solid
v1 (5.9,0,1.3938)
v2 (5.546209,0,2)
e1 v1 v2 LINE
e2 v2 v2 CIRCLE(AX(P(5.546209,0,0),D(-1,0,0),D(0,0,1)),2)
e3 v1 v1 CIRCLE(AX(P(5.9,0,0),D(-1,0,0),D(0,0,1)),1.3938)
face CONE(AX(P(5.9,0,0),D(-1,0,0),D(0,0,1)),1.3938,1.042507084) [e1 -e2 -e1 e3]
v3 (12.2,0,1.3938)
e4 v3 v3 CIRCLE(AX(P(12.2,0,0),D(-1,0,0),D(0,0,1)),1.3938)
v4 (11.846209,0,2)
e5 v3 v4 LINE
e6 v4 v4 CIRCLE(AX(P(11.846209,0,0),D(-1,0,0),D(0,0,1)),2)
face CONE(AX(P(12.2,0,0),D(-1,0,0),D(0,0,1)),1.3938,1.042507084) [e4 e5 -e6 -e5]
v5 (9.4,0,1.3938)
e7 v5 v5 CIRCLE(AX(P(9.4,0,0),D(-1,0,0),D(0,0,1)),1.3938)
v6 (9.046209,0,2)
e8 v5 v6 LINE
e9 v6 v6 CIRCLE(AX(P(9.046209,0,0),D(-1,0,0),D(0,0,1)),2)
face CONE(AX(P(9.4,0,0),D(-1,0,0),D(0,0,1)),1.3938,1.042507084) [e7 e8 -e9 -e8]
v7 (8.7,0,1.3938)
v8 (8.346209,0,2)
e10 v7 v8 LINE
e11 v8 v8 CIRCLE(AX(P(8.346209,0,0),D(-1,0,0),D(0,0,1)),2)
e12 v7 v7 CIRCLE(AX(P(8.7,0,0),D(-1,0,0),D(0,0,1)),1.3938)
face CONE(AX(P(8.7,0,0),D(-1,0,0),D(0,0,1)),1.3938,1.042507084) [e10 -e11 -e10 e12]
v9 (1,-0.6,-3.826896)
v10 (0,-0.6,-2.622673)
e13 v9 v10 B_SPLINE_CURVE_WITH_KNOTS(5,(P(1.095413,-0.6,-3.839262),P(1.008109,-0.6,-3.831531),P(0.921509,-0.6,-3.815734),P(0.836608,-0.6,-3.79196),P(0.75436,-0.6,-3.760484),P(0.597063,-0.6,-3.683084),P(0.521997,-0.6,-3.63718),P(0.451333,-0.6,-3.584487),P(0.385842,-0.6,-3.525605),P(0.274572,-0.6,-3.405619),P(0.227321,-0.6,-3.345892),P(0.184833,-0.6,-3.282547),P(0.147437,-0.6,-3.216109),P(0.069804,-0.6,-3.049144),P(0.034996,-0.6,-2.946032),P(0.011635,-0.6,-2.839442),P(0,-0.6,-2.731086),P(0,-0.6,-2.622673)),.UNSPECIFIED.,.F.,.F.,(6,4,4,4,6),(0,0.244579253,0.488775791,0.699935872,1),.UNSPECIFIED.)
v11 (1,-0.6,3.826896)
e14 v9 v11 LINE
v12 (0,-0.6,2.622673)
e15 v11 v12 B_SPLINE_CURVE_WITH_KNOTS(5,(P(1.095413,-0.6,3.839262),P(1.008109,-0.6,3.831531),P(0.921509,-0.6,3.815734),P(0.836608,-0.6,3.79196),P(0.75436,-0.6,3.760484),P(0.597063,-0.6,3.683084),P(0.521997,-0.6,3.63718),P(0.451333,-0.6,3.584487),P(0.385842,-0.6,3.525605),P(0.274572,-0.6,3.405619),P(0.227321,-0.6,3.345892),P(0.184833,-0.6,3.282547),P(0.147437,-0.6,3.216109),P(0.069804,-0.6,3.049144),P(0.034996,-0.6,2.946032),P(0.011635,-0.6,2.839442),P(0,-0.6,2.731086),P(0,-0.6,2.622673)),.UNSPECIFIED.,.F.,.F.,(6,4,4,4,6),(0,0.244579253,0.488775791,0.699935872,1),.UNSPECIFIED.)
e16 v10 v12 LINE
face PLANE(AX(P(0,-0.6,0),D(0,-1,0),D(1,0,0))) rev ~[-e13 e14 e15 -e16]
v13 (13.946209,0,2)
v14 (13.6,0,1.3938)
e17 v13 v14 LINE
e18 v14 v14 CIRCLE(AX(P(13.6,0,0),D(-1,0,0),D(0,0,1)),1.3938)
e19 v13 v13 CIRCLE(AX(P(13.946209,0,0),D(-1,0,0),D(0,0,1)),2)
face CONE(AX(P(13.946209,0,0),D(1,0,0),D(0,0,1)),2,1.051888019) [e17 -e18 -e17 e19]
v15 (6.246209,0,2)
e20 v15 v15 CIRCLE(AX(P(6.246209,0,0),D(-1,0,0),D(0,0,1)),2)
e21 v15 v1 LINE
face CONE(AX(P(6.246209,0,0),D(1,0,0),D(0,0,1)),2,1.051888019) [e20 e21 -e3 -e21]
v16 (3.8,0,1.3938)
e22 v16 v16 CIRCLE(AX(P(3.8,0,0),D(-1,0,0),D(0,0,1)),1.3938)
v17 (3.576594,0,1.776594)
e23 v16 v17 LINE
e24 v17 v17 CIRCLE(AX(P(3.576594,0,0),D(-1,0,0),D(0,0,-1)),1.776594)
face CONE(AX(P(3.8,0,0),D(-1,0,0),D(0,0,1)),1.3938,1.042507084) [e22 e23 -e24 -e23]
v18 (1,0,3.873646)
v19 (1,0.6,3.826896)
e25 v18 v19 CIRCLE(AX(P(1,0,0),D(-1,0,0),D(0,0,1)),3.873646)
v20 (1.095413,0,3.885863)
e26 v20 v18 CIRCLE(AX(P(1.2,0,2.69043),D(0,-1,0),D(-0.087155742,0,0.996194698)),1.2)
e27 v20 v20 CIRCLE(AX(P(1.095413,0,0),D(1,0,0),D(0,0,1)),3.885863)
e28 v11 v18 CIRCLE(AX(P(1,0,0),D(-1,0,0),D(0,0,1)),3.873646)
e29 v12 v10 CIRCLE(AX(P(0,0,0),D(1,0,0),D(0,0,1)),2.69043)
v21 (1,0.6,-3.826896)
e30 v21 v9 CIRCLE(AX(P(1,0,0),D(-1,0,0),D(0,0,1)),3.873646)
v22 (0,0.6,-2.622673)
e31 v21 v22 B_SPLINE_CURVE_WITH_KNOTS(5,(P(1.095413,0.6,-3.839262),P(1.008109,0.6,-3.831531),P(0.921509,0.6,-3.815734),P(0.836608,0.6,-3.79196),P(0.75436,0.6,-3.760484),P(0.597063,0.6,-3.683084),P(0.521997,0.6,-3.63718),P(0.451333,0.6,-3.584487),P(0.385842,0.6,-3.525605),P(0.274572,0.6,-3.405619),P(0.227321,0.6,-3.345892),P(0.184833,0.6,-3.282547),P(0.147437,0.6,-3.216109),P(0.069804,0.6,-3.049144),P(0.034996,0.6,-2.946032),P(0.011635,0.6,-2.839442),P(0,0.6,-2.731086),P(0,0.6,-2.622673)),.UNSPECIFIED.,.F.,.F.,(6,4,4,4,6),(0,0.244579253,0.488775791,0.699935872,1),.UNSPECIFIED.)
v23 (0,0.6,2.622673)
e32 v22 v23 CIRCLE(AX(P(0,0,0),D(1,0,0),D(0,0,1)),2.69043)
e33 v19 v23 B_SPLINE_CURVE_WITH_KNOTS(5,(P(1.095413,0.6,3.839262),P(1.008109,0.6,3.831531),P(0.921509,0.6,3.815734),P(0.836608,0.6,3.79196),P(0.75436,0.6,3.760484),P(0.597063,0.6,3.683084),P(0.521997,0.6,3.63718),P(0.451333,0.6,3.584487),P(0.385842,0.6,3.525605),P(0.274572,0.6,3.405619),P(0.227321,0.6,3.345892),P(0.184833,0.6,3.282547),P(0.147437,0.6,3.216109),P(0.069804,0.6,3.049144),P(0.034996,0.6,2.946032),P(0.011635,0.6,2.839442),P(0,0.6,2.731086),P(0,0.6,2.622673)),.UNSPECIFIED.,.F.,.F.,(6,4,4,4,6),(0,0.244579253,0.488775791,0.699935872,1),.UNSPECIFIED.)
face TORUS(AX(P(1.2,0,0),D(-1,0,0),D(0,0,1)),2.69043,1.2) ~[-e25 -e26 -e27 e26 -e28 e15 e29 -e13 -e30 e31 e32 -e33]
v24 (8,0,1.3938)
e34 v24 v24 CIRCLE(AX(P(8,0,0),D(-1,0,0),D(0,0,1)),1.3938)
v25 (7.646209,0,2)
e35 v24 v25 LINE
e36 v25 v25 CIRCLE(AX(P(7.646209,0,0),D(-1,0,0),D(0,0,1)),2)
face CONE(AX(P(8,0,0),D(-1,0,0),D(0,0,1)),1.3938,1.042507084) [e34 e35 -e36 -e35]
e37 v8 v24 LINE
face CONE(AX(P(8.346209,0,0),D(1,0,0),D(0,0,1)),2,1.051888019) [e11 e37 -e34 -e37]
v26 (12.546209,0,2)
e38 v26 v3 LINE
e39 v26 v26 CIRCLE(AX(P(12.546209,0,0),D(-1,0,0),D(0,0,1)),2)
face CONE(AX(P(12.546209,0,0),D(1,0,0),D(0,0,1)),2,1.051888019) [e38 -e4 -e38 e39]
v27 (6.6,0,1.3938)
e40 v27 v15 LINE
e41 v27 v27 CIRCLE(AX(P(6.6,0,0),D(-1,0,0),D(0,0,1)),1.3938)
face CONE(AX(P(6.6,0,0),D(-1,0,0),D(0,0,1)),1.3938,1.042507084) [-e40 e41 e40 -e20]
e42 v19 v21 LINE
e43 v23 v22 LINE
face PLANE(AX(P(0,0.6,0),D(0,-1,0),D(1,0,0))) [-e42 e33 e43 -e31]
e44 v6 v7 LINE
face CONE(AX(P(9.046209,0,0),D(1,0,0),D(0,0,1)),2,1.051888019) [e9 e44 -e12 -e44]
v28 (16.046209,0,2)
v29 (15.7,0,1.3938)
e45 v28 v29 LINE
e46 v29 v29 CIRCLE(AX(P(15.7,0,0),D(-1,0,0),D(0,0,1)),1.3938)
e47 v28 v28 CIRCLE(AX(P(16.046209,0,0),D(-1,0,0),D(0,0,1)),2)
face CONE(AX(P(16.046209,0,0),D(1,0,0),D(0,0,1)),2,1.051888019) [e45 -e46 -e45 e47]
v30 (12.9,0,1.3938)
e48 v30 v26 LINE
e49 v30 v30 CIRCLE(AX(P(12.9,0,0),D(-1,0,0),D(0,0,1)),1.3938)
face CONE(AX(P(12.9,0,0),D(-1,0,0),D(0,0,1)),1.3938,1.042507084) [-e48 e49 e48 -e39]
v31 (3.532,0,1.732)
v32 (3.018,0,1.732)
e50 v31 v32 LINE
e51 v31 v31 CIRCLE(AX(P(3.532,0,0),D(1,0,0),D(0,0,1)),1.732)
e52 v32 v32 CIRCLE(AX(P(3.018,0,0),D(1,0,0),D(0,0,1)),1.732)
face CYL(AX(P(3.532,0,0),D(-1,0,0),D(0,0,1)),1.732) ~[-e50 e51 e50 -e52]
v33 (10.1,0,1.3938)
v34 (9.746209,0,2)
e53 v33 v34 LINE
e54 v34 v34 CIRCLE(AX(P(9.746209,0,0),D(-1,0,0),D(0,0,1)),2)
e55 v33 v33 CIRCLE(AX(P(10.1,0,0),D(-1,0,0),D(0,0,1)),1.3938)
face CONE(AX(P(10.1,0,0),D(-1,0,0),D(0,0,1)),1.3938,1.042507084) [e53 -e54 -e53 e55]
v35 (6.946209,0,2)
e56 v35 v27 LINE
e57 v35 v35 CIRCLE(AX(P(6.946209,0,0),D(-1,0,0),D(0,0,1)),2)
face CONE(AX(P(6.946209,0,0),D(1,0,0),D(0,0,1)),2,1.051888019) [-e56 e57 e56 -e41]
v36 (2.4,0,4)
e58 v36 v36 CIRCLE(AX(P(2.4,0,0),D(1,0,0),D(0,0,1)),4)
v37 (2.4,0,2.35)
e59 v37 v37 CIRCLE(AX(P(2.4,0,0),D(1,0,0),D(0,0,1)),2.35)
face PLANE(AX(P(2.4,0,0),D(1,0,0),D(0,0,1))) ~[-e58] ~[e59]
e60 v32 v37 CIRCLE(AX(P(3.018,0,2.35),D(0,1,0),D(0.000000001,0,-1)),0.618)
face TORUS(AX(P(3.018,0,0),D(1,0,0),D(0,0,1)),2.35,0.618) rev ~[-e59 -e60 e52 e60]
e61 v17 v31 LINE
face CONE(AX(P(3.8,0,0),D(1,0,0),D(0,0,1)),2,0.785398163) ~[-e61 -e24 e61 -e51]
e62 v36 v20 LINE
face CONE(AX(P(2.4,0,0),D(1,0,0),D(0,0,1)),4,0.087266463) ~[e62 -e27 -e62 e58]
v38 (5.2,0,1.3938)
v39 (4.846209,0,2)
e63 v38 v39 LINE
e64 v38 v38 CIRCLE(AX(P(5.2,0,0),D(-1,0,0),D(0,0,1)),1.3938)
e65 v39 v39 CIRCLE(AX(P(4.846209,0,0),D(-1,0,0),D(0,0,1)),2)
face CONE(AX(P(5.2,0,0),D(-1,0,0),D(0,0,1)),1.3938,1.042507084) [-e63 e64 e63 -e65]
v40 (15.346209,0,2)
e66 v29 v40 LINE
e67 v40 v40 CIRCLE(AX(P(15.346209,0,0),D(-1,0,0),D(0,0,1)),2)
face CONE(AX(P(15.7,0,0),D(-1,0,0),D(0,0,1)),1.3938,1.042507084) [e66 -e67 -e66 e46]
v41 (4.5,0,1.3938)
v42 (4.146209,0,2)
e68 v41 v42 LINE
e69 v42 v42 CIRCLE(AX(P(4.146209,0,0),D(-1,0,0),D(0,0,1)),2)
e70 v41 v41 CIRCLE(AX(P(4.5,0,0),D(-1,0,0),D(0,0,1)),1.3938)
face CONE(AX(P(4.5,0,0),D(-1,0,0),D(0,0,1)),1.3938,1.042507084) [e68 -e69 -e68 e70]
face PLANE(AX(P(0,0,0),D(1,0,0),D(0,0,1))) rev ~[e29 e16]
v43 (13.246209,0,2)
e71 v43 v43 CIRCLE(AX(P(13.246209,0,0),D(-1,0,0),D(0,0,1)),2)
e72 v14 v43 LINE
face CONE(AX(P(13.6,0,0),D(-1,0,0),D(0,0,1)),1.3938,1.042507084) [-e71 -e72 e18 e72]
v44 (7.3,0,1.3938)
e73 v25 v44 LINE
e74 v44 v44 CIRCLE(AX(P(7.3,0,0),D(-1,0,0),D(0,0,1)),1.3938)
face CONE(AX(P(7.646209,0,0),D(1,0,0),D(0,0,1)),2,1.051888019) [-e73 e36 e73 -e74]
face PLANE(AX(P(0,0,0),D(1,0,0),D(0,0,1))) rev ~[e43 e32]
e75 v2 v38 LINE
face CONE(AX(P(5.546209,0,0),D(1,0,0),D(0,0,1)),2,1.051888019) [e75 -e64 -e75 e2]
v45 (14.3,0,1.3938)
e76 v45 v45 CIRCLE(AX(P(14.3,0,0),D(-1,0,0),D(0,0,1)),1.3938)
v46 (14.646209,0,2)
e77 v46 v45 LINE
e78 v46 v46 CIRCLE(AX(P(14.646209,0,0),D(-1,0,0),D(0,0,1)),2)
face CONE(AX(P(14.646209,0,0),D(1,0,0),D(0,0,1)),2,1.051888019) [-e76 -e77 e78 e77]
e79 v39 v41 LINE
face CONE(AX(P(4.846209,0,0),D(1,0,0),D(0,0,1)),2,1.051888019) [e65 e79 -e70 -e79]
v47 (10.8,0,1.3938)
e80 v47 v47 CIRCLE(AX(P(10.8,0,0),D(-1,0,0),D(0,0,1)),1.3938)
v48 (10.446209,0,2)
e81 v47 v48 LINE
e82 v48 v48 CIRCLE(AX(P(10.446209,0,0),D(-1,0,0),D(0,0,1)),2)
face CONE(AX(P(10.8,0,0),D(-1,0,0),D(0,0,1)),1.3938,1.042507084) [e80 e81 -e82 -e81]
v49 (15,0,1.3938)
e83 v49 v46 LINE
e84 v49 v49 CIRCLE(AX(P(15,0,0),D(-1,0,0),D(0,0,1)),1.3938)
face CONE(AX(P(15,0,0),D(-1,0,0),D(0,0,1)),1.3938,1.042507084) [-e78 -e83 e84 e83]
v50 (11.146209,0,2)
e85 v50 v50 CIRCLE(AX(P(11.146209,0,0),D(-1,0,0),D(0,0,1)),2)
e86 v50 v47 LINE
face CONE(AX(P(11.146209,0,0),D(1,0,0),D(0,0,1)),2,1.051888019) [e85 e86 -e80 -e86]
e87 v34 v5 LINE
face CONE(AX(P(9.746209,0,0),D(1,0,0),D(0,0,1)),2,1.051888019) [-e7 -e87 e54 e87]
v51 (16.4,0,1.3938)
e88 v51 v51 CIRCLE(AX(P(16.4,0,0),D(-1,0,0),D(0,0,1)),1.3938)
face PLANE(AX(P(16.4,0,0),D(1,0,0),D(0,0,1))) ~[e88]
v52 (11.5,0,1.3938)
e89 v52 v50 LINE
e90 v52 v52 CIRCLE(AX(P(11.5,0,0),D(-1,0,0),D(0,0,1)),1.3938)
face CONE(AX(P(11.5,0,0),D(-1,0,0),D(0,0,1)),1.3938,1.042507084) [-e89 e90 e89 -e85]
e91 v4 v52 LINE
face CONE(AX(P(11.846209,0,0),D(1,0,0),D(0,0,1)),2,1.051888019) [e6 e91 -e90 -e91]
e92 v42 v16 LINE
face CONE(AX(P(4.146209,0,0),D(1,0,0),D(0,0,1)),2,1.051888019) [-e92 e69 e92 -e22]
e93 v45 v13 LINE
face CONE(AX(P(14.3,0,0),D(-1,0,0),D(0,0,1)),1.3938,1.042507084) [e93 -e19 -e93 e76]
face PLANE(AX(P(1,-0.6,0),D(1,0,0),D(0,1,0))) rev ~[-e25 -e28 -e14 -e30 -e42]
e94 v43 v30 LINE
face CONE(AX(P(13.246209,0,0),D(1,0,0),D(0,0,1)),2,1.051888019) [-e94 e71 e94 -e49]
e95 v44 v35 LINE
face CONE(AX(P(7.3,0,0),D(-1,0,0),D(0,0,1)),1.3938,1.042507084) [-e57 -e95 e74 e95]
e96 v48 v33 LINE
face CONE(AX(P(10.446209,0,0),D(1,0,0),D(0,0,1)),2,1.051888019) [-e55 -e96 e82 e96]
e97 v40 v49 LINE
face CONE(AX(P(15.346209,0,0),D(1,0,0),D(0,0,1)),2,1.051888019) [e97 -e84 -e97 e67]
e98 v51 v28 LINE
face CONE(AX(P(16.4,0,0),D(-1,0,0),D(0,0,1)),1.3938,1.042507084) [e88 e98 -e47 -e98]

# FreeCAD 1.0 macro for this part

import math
import FreeCAD as App
import Part
import Sketcher
Q = App.Units.Quantity

doc = App.newDocument("Part")
body = doc.addObject("PartDesign::Body", "Body")

sketch1 = body.newObject("Sketcher::SketchObject", "Sketch")
sketch1.AttachmentSupport = (doc.getObject("XY_Plane"), [""])
sketch1.MapMode = "FlatFace"
sketch1.addGeometry([
    Part.LineSegment(App.Vector(0, 0, 0), App.Vector(16.4, 0, 0)),
    Part.LineSegment(App.Vector(16.4, 0, 0), App.Vector(16.4, 2, 0)),
    Part.LineSegment(App.Vector(16.4, 2, 0), App.Vector(3.8, 2, 0)),
    Part.LineSegment(App.Vector(3.8, 2, 0), App.Vector(3.532, 1.732, 0)),
    Part.LineSegment(App.Vector(3.532, 1.732, 0), App.Vector(3.018, 1.732, 0)),
    Part.ArcOfCircle(Part.Circle(App.Vector(3.018, 2.35, 0), App.Vector(0, 0, 1), 0.618), math.radians(180), math.radians(270)),
    Part.LineSegment(App.Vector(2.4, 2.35, 0), App.Vector(2.4, 4, 0)),
    Part.LineSegment(App.Vector(2.4, 4, 0), App.Vector(1.095413, 3.885863, 0)),
    Part.ArcOfCircle(Part.Circle(App.Vector(1.2, 2.69043, 0), App.Vector(0, 0, 1), 1.2), math.radians(95), math.radians(180)),
    Part.LineSegment(App.Vector(0, 2.69043, 0), App.Vector(0, 0, 0)),
], False)
sketch1.addConstraint([
    Sketcher.Constraint("Coincident", 0, 2, 1, 1),
    Sketcher.Constraint("Coincident", 1, 2, 2, 1),
    Sketcher.Constraint("Coincident", 2, 2, 3, 1),
    Sketcher.Constraint("Coincident", 3, 2, 4, 1),
    Sketcher.Constraint("Tangent", 4, 2, 5, 2),
    Sketcher.Constraint("Tangent", 5, 1, 6, 1),
    Sketcher.Constraint("Coincident", 6, 2, 7, 1),
    Sketcher.Constraint("Tangent", 7, 2, 8, 1),
    Sketcher.Constraint("Tangent", 8, 2, 9, 1),
    Sketcher.Constraint("Coincident", 9, 2, 0, 1),
    Sketcher.Constraint("Horizontal", 0),
    Sketcher.Constraint("Vertical", 1),
    Sketcher.Constraint("Horizontal", 2),
    Sketcher.Constraint("Horizontal", 4),
    Sketcher.Constraint("Vertical", 6),
    Sketcher.Constraint("Vertical", 9),
    Sketcher.Constraint("Coincident", 9, 2, -1, 1),
    Sketcher.Constraint("Radius", 8, Q("1.2 mm")),
    Sketcher.Constraint("DistanceY", 1, 1, 1, 2, Q("2 mm")),
    Sketcher.Constraint("Angle", 3, Q("-135 deg")),
    Sketcher.Constraint("Angle", 7, Q("-175 deg")),
    Sketcher.Constraint("DistanceX", 0, 1, 0, 2, Q("16.4 mm")),
    Sketcher.Constraint("DistanceX", 2, 2, 2, 1, Q("12.6 mm")),
    Sketcher.Constraint("DistanceY", -1, 1, 6, 2, Q("4 mm")),
    Sketcher.Constraint("Radius", 5, Q("0.618 mm")),
    Sketcher.Constraint("DistanceY", 6, 1, 6, 2, Q("1.65 mm")),
    Sketcher.Constraint("DistanceX", -1, 1, 5, 1, Q("2.4 mm")),
])
revolution = body.newObject("PartDesign::Revolution", "Revolution")
revolution.Profile = sketch1
revolution.ReferenceAxis = (sketch1, ["H_Axis"])
revolution.Angle = 360

sketch2 = body.newObject("Sketcher::SketchObject", "Sketch001")
sketch2.AttachmentSupport = (doc.getObject("XY_Plane"), [""])
sketch2.MapMode = "FlatFace"
sketch2.addGeometry([
    Part.LineSegment(App.Vector(0, 0.6, 0), App.Vector(0, -0.6, 0)),
    Part.LineSegment(App.Vector(0, -0.6, 0), App.Vector(1, -0.6, 0)),
    Part.LineSegment(App.Vector(1, -0.6, 0), App.Vector(1, 0.6, 0)),
    Part.LineSegment(App.Vector(1, 0.6, 0), App.Vector(0, 0.6, 0)),
], False)
sketch2.addConstraint([
    Sketcher.Constraint("Coincident", 0, 2, 1, 1),
    Sketcher.Constraint("Coincident", 1, 2, 2, 1),
    Sketcher.Constraint("Coincident", 2, 2, 3, 1),
    Sketcher.Constraint("Coincident", 3, 2, 0, 1),
    Sketcher.Constraint("Vertical", 0),
    Sketcher.Constraint("Horizontal", 1),
    Sketcher.Constraint("Vertical", 2),
    Sketcher.Constraint("Horizontal", 3),
    Sketcher.Constraint("Symmetric", 0, 2, 3, 2, -1, 1),
    Sketcher.Constraint("DistanceX", 1, 1, 1, 2, Q("1 mm")),
    Sketcher.Constraint("DistanceY", 0, 2, 0, 1, Q("1.2 mm")),
])
pocket1 = body.newObject("PartDesign::Pocket", "Pocket")
pocket1.Profile = sketch2
pocket1.Length = 100
pocket1.Midplane = True

sketch3 = body.newObject("Sketcher::SketchObject", "Sketch002")
sketch3.AttachmentSupport = (doc.getObject("XY_Plane"), [""])
sketch3.MapMode = "FlatFace"
sketch3.addGeometry([
    Part.LineSegment(App.Vector(16.746209, 2, 0), App.Vector(16.046209, 2, 0)),
    Part.LineSegment(App.Vector(16.046209, 2, 0), App.Vector(16.4, 1.3938, 0)),
    Part.LineSegment(App.Vector(16.4, 1.3938, 0), App.Vector(16.746209, 2, 0)),
], False)
sketch3.addConstraint([
    Sketcher.Constraint("Coincident", 0, 2, 1, 1),
    Sketcher.Constraint("Coincident", 1, 2, 2, 1),
    Sketcher.Constraint("Coincident", 2, 2, 0, 1),
    Sketcher.Constraint("Horizontal", 0),
    Sketcher.Constraint("DistanceX", 0, 2, 0, 1, Q("0.7 mm")),
    Sketcher.Constraint("DistanceY", -1, 1, 0, 2, Q("2 mm")),
    Sketcher.Constraint("DistanceX", -1, 1, 1, 2, Q("16.4 mm")),
    Sketcher.Constraint("DistanceY", -1, 1, 1, 2, Q("1.3938 mm")),
    Sketcher.Constraint("DistanceX", -1, 1, 0, 2, Q("16.046209 mm")),
])
groove = body.newObject("PartDesign::Groove", "Groove")
groove.Profile = sketch3
groove.ReferenceAxis = (sketch3, ["H_Axis"])
groove.Angle = 360
doc.recompute()

linearpattern = body.newObject("PartDesign::LinearPattern", "LinearPattern")
linearpattern.Originals = [groove]
linearpattern.Direction = (doc.getObject("X_Axis"), [""])
linearpattern.Mode = "offset"
linearpattern.Offset = 0.7
linearpattern.Occurrences = 19
linearpattern.Reversed = True
body.Tip = linearpattern

doc.recompute()
